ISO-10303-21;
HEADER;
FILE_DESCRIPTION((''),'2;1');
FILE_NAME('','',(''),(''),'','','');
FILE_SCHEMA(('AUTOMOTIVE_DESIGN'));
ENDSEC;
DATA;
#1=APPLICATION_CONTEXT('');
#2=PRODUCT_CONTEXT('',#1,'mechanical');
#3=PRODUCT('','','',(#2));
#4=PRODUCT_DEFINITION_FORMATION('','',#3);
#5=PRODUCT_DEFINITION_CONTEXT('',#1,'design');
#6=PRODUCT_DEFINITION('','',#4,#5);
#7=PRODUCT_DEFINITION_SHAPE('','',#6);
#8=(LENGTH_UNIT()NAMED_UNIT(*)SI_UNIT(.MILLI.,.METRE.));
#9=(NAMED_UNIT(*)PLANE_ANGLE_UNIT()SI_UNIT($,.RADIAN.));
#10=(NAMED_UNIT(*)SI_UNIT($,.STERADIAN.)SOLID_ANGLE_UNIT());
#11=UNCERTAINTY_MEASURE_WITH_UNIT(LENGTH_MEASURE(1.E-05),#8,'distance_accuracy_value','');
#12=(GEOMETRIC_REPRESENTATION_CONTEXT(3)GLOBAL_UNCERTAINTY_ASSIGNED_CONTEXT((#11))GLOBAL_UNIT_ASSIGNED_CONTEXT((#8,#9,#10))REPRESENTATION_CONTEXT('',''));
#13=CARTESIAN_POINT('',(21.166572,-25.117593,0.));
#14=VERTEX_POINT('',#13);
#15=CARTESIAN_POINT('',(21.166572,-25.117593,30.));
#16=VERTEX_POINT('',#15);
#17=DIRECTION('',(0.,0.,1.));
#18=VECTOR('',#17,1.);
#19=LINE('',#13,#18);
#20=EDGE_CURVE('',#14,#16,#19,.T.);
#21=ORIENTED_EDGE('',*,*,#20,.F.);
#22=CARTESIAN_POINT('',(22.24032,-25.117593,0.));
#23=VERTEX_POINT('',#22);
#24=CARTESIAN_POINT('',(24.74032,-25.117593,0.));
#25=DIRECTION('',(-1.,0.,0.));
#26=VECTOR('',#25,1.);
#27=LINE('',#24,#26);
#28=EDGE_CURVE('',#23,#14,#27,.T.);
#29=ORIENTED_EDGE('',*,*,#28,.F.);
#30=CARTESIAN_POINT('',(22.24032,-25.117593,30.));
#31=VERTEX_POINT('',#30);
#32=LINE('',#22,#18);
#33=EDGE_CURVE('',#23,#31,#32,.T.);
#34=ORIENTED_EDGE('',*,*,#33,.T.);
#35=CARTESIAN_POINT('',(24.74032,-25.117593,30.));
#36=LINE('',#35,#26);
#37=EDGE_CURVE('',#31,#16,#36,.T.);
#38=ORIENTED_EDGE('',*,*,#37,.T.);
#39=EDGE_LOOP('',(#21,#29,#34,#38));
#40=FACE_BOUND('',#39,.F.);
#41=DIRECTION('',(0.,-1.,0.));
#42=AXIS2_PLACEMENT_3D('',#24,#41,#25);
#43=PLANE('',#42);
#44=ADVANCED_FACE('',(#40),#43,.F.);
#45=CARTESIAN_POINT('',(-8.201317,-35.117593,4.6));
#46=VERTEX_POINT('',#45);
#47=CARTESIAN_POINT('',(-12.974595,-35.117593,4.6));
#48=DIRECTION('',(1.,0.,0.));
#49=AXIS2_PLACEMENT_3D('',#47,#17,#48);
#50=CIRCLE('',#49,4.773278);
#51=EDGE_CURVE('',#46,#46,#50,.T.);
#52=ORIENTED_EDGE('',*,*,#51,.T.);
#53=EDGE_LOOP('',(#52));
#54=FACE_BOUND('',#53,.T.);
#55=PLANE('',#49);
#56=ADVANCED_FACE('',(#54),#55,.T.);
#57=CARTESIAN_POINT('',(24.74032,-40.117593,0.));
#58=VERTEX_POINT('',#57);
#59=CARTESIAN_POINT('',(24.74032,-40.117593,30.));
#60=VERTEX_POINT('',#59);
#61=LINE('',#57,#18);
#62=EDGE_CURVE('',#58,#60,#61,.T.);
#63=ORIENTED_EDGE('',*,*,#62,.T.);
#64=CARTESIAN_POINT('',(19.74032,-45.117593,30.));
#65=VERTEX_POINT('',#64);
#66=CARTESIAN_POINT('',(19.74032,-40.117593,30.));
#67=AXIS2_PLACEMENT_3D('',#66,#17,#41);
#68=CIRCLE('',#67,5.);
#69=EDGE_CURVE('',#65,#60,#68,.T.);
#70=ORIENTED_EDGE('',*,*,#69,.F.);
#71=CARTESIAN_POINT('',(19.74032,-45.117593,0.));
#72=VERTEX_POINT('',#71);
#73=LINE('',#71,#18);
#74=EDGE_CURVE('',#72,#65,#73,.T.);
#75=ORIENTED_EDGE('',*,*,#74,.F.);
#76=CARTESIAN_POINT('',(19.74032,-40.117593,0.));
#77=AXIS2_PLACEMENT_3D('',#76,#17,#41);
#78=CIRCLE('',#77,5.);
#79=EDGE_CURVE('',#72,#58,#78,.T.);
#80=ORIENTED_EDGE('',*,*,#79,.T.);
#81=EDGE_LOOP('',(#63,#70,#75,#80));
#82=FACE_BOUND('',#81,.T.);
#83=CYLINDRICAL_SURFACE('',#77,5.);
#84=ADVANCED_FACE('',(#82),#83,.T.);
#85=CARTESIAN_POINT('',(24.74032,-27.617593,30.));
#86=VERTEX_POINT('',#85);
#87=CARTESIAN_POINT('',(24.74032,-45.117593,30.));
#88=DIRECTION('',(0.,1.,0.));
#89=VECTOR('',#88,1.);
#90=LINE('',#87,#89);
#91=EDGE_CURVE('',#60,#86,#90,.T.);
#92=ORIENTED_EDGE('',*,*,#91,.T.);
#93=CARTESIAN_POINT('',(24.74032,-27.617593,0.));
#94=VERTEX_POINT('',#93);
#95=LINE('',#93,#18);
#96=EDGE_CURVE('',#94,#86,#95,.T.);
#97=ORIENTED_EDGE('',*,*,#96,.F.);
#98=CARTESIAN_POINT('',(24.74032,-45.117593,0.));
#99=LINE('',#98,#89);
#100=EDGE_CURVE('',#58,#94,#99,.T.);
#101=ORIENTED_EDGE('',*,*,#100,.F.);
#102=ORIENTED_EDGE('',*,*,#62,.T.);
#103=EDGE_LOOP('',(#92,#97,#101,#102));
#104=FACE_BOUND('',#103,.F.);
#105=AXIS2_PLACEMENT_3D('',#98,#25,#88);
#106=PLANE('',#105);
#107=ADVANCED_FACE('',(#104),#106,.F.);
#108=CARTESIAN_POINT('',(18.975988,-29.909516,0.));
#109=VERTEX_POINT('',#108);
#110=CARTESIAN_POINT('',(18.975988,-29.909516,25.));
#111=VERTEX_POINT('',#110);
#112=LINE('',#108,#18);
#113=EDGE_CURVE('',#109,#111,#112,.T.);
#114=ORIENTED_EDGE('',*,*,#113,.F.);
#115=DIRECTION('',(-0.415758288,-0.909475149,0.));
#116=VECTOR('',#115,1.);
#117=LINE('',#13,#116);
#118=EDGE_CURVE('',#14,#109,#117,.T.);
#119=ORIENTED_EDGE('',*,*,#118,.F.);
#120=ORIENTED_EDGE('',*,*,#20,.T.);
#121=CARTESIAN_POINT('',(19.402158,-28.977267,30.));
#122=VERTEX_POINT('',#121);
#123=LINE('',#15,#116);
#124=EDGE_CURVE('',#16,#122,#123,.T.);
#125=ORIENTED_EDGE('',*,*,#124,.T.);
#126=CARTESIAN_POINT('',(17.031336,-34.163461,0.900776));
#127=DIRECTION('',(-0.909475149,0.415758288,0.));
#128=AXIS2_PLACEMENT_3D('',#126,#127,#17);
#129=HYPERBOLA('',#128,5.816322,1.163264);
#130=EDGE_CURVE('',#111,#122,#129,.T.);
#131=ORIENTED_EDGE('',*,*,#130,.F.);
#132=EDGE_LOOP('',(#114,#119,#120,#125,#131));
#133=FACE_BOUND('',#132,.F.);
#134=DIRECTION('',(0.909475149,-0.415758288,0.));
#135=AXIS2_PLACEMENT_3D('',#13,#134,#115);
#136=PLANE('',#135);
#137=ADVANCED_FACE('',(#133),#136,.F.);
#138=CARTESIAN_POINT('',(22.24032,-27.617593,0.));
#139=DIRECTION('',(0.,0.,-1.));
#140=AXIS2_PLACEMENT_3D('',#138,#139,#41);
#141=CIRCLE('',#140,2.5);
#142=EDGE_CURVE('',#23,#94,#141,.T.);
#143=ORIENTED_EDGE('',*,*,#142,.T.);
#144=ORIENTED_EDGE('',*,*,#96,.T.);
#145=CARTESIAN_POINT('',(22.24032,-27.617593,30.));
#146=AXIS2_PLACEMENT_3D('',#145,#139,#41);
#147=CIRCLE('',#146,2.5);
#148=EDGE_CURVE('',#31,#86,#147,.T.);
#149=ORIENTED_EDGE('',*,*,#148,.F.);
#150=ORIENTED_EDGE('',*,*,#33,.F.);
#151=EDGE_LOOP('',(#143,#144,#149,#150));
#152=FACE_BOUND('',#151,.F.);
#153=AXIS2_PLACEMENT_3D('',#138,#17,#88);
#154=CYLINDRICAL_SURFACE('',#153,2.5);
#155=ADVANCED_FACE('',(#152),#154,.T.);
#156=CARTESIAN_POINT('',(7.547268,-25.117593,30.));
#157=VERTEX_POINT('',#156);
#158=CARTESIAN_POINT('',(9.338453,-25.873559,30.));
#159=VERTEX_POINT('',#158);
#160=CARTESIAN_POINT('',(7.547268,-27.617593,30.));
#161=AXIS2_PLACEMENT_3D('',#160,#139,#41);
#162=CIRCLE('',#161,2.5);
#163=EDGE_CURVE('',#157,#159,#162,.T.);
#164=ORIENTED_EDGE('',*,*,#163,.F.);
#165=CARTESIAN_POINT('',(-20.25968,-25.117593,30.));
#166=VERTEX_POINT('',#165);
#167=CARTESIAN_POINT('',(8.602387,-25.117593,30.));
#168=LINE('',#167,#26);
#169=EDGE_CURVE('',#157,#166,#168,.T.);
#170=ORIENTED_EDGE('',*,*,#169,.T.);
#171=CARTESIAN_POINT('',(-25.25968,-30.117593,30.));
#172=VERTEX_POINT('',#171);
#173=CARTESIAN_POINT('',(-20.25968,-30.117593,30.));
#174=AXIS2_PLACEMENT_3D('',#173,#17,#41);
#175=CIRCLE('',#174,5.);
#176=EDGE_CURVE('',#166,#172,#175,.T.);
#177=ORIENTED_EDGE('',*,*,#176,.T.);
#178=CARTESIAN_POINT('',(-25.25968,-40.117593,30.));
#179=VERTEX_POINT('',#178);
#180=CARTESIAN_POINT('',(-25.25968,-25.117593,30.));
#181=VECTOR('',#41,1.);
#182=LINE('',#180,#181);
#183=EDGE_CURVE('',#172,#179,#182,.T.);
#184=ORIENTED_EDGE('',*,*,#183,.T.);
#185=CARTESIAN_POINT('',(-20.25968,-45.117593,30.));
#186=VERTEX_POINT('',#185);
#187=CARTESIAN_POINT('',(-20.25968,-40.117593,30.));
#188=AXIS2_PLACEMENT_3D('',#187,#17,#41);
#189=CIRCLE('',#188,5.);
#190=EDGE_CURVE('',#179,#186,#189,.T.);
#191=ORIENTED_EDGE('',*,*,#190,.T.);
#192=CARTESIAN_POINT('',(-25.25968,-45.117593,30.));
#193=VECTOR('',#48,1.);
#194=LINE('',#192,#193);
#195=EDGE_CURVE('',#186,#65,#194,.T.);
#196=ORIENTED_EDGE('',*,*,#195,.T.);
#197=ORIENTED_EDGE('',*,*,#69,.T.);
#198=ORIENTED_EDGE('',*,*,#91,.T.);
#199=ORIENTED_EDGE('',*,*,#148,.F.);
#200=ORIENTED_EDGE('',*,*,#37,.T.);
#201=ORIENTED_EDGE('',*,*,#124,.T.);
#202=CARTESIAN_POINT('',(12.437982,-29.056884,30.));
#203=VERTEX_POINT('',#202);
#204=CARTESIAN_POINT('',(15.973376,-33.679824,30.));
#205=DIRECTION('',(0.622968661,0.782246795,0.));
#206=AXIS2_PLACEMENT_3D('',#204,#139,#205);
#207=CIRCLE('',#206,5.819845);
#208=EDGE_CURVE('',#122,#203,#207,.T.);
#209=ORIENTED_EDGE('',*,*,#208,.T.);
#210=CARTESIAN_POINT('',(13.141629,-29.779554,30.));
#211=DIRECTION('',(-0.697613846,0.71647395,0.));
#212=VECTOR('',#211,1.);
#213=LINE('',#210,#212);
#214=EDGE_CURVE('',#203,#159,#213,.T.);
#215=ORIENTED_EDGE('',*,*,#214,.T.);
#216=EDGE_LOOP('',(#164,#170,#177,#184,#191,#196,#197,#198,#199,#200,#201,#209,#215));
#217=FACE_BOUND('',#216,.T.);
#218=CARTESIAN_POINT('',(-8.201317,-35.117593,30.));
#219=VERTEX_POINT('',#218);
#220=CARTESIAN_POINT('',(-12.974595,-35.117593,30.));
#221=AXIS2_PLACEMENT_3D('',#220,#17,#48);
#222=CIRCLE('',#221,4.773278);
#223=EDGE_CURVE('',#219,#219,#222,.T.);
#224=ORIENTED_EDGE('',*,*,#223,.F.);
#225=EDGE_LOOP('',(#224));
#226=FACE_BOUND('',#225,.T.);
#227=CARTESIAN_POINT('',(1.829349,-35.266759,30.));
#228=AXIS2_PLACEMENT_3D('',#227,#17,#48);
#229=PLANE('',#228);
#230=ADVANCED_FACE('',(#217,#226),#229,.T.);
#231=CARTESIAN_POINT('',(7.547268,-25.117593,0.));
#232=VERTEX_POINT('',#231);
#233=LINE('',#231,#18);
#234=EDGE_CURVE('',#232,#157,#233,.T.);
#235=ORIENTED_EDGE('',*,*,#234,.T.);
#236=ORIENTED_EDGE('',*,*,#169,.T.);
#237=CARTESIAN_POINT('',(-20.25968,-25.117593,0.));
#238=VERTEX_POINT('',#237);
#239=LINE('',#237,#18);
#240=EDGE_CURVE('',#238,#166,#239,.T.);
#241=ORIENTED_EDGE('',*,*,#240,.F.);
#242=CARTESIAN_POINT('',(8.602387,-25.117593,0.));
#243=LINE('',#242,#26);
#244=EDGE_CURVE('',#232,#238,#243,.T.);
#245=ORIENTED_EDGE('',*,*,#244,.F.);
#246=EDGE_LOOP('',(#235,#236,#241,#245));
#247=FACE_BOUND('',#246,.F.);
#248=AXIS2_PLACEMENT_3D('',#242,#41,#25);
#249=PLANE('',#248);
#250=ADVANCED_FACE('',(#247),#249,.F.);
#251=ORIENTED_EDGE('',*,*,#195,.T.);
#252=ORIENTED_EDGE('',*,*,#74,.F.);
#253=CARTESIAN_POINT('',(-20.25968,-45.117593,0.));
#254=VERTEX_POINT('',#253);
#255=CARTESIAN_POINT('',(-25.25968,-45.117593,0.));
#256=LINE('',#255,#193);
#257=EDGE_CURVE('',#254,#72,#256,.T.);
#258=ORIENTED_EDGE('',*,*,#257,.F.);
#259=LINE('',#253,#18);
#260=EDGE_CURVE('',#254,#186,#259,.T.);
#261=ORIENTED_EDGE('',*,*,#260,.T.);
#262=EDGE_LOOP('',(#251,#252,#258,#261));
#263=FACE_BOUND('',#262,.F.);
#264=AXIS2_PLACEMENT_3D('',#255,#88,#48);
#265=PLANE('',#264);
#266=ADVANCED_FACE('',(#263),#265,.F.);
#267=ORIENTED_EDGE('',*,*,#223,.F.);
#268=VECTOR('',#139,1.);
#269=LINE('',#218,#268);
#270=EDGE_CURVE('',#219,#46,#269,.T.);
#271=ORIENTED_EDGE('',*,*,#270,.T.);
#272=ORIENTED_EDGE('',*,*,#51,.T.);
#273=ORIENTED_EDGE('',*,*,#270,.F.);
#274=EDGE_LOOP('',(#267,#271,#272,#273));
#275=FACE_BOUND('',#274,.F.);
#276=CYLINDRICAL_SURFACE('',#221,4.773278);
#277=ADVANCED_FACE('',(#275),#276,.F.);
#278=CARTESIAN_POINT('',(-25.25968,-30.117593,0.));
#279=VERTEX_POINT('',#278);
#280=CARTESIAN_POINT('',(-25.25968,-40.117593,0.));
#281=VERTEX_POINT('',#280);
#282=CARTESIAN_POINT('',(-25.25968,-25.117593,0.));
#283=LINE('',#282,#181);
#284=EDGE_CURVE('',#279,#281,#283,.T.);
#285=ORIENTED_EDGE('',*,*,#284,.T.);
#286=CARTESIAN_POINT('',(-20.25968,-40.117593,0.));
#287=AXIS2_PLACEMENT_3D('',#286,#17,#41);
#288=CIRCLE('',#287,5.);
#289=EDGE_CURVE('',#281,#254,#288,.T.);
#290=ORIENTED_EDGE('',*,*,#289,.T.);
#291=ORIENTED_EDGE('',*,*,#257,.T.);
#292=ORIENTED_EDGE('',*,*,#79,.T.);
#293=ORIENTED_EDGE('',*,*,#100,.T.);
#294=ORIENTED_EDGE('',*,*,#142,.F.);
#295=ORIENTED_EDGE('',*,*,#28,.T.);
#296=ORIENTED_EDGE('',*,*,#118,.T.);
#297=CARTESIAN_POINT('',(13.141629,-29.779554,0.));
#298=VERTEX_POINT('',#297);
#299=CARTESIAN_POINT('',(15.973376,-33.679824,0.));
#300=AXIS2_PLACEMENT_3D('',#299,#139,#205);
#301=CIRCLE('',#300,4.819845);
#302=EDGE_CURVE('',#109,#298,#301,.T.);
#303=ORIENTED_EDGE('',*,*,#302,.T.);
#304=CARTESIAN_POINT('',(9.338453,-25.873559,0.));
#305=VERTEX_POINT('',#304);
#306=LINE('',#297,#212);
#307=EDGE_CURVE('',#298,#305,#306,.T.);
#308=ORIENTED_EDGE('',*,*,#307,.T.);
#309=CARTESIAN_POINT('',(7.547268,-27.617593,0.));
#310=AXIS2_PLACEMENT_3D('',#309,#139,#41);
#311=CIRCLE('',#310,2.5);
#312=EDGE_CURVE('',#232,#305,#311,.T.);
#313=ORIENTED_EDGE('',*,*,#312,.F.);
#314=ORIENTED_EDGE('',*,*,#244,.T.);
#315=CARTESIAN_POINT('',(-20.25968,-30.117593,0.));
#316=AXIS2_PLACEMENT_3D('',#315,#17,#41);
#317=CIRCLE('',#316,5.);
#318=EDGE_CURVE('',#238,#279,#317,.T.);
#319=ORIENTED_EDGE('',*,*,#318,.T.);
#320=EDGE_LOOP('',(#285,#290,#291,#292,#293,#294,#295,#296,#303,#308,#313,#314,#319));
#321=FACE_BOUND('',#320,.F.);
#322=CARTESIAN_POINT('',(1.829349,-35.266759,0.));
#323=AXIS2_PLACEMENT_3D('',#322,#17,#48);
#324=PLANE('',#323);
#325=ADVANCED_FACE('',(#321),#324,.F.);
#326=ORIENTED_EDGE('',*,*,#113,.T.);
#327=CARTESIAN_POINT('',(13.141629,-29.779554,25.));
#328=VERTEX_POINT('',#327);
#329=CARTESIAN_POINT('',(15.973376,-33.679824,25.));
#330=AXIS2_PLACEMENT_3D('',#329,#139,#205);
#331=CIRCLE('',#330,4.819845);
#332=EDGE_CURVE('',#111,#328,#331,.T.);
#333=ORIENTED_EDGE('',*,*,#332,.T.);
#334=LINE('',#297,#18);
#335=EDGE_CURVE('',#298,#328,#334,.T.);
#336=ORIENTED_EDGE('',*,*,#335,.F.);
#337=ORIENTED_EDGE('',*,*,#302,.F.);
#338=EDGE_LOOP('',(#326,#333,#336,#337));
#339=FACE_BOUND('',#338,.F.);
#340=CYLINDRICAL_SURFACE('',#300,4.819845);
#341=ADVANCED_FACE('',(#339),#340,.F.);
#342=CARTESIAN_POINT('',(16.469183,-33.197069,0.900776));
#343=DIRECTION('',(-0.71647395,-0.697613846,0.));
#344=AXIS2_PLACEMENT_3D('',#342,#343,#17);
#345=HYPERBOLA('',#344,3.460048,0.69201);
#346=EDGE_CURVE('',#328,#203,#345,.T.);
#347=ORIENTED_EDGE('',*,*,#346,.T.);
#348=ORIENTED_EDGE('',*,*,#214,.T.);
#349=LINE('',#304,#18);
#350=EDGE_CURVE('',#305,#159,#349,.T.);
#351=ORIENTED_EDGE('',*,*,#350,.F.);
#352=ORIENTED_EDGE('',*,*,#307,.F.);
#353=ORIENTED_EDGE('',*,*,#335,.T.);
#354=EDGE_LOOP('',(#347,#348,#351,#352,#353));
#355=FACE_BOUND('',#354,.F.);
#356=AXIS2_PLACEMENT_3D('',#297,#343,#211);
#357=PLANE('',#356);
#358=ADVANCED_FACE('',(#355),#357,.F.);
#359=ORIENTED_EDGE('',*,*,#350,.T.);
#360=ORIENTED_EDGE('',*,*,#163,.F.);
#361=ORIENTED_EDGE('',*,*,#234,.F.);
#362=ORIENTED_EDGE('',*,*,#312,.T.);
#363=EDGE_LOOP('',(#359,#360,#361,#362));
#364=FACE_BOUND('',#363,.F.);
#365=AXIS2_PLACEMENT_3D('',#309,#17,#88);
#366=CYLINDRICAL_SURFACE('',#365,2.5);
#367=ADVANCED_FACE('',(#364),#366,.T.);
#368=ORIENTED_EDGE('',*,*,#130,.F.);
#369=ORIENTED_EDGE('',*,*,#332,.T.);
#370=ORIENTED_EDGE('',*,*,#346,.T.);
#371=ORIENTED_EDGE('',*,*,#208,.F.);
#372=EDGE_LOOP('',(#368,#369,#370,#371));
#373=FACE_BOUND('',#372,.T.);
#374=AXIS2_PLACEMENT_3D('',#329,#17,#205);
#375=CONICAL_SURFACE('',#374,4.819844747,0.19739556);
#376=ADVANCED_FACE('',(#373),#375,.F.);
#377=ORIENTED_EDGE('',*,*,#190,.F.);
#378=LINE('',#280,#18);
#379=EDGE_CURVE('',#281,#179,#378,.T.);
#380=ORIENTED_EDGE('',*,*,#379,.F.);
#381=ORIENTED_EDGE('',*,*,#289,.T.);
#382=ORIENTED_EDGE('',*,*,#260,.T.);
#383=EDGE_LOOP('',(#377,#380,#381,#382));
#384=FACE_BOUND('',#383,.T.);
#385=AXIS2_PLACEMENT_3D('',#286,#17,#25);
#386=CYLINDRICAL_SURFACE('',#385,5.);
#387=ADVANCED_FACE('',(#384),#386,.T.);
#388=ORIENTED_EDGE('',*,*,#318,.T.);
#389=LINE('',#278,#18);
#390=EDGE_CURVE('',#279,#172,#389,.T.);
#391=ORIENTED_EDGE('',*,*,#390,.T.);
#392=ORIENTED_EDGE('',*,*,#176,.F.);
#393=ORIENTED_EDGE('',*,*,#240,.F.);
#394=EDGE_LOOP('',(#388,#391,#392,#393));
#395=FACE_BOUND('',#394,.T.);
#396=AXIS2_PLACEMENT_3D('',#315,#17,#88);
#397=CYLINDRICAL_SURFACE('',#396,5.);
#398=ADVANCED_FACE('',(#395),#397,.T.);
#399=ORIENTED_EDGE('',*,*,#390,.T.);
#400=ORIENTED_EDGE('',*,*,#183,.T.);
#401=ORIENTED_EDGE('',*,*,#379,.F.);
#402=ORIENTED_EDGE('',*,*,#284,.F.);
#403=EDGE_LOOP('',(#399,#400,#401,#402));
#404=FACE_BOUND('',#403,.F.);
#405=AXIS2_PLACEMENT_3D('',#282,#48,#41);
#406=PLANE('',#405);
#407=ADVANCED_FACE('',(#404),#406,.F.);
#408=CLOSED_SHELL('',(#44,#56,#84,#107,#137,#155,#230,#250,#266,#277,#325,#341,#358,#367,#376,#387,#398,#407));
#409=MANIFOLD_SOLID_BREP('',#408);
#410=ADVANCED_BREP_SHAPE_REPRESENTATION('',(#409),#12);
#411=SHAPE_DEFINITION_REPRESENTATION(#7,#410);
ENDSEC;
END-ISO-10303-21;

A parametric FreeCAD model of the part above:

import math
import FreeCAD as App
import Part
import Sketcher

V = App.Vector


def edges_at(feature, points):
    """Names of the edges that pass closest to the given points."""
    edges = feature.Shape.Edges
    near = lambda p: min(range(len(edges)), key=lambda i: edges[i].distToShape(Part.Vertex(*p))[0])
    return sorted({f"Edge{near(p) + 1}" for p in points})

doc = App.newDocument("Part")
params = doc.addObject("Spreadsheet::Sheet", "Params")
for row, (alias, value) in enumerate([
    ("sketch1_width", "50 mm"),
    ("sketch1_height", "20 mm"),
    ("pad1_length", "30 mm"),
    ("fillet_radius", "5 mm"),
    ("fillet2_radius", "2.5 mm"),
    ("chamfer_size", "5 mm"),
    ("chamfer_size2", "1 mm"),
    ("pocket1_length", "25.4 mm"),
], start=1):
    params.set(f"A{row}", alias)
    params.set(f"B{row}", "=" + value)
    params.setAlias(f"B{row}", alias)

body = doc.addObject("PartDesign::Body", "Body")

# Sketch on XY plane
sketch1 = doc.addObject("Sketcher::SketchObject", "Sketch")
body.addObject(sketch1)
sketch1.AttachmentSupport = (doc.XY_Plane, [""])
sketch1.MapMode = "FlatFace"
sketch1.addGeometry([
    Part.LineSegment(V(8.6, -25.1, 0), V(-25.3, -25.1, 0)),  # 0
    Part.LineSegment(V(-25.3, -25.1, 0), V(-25.3, -45.1, 0)),  # 1
    Part.LineSegment(V(-25.3, -45.1, 0), V(24.7, -45.1, 0)),  # 2
    Part.LineSegment(V(24.7, -45.1, 0), V(24.7, -25.1, 0)),  # 3
    Part.LineSegment(V(24.7, -25.1, 0), V(21.2, -25.1, 0)),  # 4
    Part.LineSegment(V(21.2, -25.1, 0), V(19, -29.9, 0)),  # 5
    Part.ArcOfCircle(Part.Circle(V(16, -33.7, 0), V(0, 0, 1), 4.8), math.radians(126), math.radians(411)),  # 6
    Part.LineSegment(V(13.1, -29.8, 0), V(8.6, -25.1, 0)),  # 7
], False)
sketch1.addConstraint([
    Sketcher.Constraint("Coincident", 0, 2, 1, 1),
    Sketcher.Constraint("Coincident", 1, 2, 2, 1),
    Sketcher.Constraint("Coincident", 2, 2, 3, 1),
    Sketcher.Constraint("Coincident", 3, 2, 4, 1),
    Sketcher.Constraint("Coincident", 4, 2, 5, 1),
    Sketcher.Constraint("Coincident", 5, 2, 6, 2),
    Sketcher.Constraint("Coincident", 6, 1, 7, 1),
    Sketcher.Constraint("Coincident", 7, 2, 0, 1),
    Sketcher.Constraint("Horizontal", 0),
    Sketcher.Constraint("Vertical", 1),
    Sketcher.Constraint("Horizontal", 2),
    Sketcher.Constraint("Vertical", 3),
    Sketcher.Constraint("Horizontal", 4),
    Sketcher.Constraint("Horizontal", 0, 2, 3, 2),
    Sketcher.Constraint("DistanceX", 2, 1, 2, 2, 50.0),
    Sketcher.Constraint("DistanceY", 1, 2, 1, 1, 20.0),
    Sketcher.Constraint("Radius", 6, 4.819845),
    Sketcher.Constraint("DistanceX", 7, 2, 5, 2, 10.373601),
    Sketcher.Constraint("Distance", 5, 5.268888),
    Sketcher.Constraint("Distance", 7, 6.506811),
    Sketcher.Constraint("DistanceX", 0, 2, 0, 1, 33.862067),
    Sketcher.Constraint("DistanceX", 4, 2, 4, 1, 3.573748),
    Sketcher.Constraint("DistanceX", 0, 2, -1, 1, 25.25968),
    Sketcher.Constraint("DistanceX", -1, 1, 6, 1, 13.141629),
    Sketcher.Constraint("DistanceY", 6, 3, -1, 1, 33.679824),
])
sketch1.setExpression("Constraints[14]", "Params.sketch1_width")
sketch1.setExpression("Constraints[15]", "Params.sketch1_height")
pad1 = doc.addObject("PartDesign::Pad", "Pad")
body.addObject(pad1)
pad1.Profile = sketch1
pad1.setExpression("Length", "Params.pad1_length")
doc.recompute()

fillet = doc.addObject("PartDesign::Fillet", "Fillet")
body.addObject(fillet)
fillet.Base = (pad1, edges_at(pad1, [(-25.26, -25.118, 15), (-25.26, -45.118, 15), (24.74, -45.118, 15)]))
fillet.setExpression("Radius", "Params.fillet_radius")
doc.recompute()

fillet2 = doc.addObject("PartDesign::Fillet", "Fillet001")
body.addObject(fillet2)
fillet2.Base = (fillet, edges_at(fillet, [(24.74, -25.118, 15), (8.602, -25.118, 15)]))
fillet2.setExpression("Radius", "Params.fillet2_radius")
doc.recompute()

chamfer = doc.addObject("PartDesign::Chamfer", "Chamfer")
body.addObject(chamfer)
chamfer.Base = (fillet2, edges_at(fillet2, [(15.866, -38.498, 30)]))
chamfer.ChamferType = "Two distances"
chamfer.setExpression("Size", "Params.chamfer_size")
chamfer.setExpression("Size2", "Params.chamfer_size2")
chamfer.FlipDirection = True

# Sketch on XY plane
sketch2 = doc.addObject("Sketcher::SketchObject", "Sketch001")
body.addObject(sketch2)
sketch2.AttachmentSupport = (doc.XY_Plane, [""])
sketch2.MapMode = "FlatFace"
sketch2.AttachmentOffset = App.Placement(V(0, 0, 30), App.Rotation())
sketch2.addGeometry(Part.Circle(V(-13, -35.1, 0), V(0, 0, 1), 4.8), False)
sketch2.addConstraint([
    Sketcher.Constraint("Diameter", 0, 9.546555),
    Sketcher.Constraint("DistanceX", 0, 3, -1, 1, 12.974595),
    Sketcher.Constraint("DistanceY", 0, 3, -1, 1, 35.117593),
])
pocket1 = doc.addObject("PartDesign::Pocket", "Pocket")
body.addObject(pocket1)
pocket1.Profile = sketch2
pocket1.setExpression("Length", "Params.pocket1_length")

doc.recompute()
